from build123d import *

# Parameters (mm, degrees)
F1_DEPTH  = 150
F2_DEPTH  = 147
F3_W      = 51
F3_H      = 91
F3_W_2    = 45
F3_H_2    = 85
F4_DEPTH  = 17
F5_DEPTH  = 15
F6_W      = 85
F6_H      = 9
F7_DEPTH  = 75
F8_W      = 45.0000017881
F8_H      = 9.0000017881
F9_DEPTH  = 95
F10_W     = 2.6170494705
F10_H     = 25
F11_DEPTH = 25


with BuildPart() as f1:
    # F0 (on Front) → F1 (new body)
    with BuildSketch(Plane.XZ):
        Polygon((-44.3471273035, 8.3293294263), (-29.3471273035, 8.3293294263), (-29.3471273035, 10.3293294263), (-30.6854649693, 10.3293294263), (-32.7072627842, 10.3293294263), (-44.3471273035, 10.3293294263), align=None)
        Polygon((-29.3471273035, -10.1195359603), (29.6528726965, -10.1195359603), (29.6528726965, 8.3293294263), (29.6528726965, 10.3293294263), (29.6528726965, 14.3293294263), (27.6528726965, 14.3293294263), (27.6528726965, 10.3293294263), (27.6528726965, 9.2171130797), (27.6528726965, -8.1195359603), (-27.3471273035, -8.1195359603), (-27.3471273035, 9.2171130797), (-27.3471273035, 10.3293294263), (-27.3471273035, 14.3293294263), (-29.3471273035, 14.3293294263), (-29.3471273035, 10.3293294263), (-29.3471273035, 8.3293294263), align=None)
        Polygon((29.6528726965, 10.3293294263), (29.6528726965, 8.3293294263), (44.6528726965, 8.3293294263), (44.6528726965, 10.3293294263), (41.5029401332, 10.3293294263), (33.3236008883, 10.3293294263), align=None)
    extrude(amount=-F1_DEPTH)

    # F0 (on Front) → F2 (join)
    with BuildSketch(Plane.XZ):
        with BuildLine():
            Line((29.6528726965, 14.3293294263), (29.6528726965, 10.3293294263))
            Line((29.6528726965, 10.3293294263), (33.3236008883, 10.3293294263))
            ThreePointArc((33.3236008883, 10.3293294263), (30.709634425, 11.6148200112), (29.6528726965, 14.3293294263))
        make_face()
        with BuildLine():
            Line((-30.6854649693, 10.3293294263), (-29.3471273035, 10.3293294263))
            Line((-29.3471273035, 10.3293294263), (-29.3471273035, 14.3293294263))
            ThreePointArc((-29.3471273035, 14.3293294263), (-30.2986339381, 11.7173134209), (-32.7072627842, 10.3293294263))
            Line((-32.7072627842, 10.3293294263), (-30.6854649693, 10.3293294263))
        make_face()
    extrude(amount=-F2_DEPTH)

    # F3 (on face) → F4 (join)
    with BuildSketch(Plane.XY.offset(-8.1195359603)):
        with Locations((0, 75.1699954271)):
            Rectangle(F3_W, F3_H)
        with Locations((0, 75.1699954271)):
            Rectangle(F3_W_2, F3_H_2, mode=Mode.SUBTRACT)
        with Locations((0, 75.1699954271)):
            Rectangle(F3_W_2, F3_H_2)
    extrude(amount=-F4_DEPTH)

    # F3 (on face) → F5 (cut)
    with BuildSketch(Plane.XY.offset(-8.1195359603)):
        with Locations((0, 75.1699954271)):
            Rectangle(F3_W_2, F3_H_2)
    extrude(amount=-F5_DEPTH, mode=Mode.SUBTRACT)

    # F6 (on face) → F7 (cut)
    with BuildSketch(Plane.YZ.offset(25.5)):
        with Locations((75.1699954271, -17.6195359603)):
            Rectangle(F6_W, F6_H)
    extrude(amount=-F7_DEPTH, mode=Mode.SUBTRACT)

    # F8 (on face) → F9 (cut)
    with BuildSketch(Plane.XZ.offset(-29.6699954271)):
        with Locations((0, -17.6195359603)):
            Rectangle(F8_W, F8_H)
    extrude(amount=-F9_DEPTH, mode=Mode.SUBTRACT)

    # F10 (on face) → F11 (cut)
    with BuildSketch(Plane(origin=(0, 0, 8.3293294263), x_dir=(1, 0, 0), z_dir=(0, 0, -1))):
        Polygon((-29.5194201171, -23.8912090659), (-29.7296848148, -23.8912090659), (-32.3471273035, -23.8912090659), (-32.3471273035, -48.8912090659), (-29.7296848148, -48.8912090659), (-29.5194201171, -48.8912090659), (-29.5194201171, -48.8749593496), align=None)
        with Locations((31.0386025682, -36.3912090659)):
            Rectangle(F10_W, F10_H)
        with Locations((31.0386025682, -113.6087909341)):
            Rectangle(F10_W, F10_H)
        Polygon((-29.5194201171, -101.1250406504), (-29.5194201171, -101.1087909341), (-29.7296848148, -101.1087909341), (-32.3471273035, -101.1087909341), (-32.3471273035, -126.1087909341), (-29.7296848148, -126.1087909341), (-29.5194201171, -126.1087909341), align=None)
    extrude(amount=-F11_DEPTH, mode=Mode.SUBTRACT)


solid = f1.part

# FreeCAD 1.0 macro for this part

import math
import FreeCAD as App
import Part
import Sketcher


def add_polygon(sketch, points):
    """Adds a closed chain of lines whose ends are joined by coincident constraints."""
    first, n = sketch.GeometryCount, len(points)
    for a, b in zip(points, points[1:] + points[:1]):
        sketch.addGeometry(Part.LineSegment(App.Vector(*a, 0), App.Vector(*b, 0)), False)
    for i in range(n):
        sketch.addConstraint(Sketcher.Constraint("Coincident", first + i, 2, first + (i + 1) % n, 1))

doc = App.newDocument("Part")
body = doc.addObject("PartDesign::Body", "Body")

sketch1 = body.newObject("Sketcher::SketchObject", "Sketch")
sketch1.AttachmentSupport = (doc.getObject("XZ_Plane"), [""])
sketch1.MapMode = "FlatFace"
add_polygon(sketch1, [(-44.347127, 8.329329), (-29.347127, 8.329329), (-29.347127, -10.119536), (29.652873, -10.119536), (29.652873, 8.329329), (44.652873, 8.329329), (44.652873, 10.329329), (29.652873, 10.329329), (29.652873, 14.329329), (27.652873, 14.329329), (27.652873, -8.119536), (-27.347127, -8.119536), (-27.347127, 14.329329), (-29.347127, 14.329329), (-29.347127, 10.329329), (-44.347127, 10.329329)])
sketch1.addConstraint(Sketcher.Constraint("Horizontal", 0))
sketch1.addConstraint(Sketcher.Constraint("Vertical", 1))
sketch1.addConstraint(Sketcher.Constraint("Horizontal", 2))
sketch1.addConstraint(Sketcher.Constraint("Vertical", 3))
sketch1.addConstraint(Sketcher.Constraint("Horizontal", 4))
sketch1.addConstraint(Sketcher.Constraint("Vertical", 5))
sketch1.addConstraint(Sketcher.Constraint("Horizontal", 6))
sketch1.addConstraint(Sketcher.Constraint("Vertical", 7))
sketch1.addConstraint(Sketcher.Constraint("Horizontal", 8))
sketch1.addConstraint(Sketcher.Constraint("Vertical", 9))
sketch1.addConstraint(Sketcher.Constraint("Horizontal", 10))
sketch1.addConstraint(Sketcher.Constraint("Vertical", 11))
sketch1.addConstraint(Sketcher.Constraint("Horizontal", 12))
sketch1.addConstraint(Sketcher.Constraint("Vertical", 13))
sketch1.addConstraint(Sketcher.Constraint("Horizontal", 14))
sketch1.addConstraint(Sketcher.Constraint("Vertical", 15))
sketch1.addConstraint(Sketcher.Constraint("Horizontal", 0, 2, 3, 2))
sketch1.addConstraint(Sketcher.Constraint("Horizontal", 8, 2, 11, 2))
sketch1.addConstraint(Sketcher.Constraint("Horizontal", 6, 2, 13, 2))
sketch1.addConstraint(Sketcher.Constraint("Vertical", 3, 2, 6, 2))
sketch1.addConstraint(Sketcher.Constraint("Vertical", 1, 2, 12, 2))
sketch1.addConstraint(Sketcher.Constraint("Equal", 0, 4))
sketch1.addConstraint(Sketcher.Constraint("Equal", 8, 12))
sketch1.addConstraint(Sketcher.Constraint("Equal", 12, 5))
sketch1.addConstraint(Sketcher.Constraint("DistanceX", 0, 1, 0, 2, 15.0))
sketch1.addConstraint(Sketcher.Constraint("DistanceX", 2, 1, 2, 2, 59.0))
sketch1.addConstraint(Sketcher.Constraint("DistanceX", 8, 2, 8, 1, 2.0))
sketch1.addConstraint(Sketcher.Constraint("DistanceY", 7, 1, 7, 2, 4.0))
sketch1.addConstraint(Sketcher.Constraint("DistanceY", 2, 2, 9, 2, 2.0))
sketch1.addConstraint(Sketcher.Constraint("DistanceY", 1, 2, 1, 1, 18.448865))
sketch1.addConstraint(Sketcher.Constraint("DistanceY", -1, 1, 0, 2, 8.329329))
sketch1.addConstraint(Sketcher.Constraint("DistanceX", 0, 2, -1, 1, 29.347127))
pad1 = body.newObject("PartDesign::Pad", "Pad")
pad1.Profile = sketch1
pad1.Length = 150
pad1.Reversed = True

sketch2 = body.newObject("Sketcher::SketchObject", "Sketch001")
sketch2.AttachmentSupport = (doc.getObject("XZ_Plane"), [""])
sketch2.MapMode = "FlatFace"
sketch2.addGeometry(Part.LineSegment(App.Vector(29.652873, 14.329329, 0), App.Vector(29.652873, 10.329329, 0)), False)
sketch2.addGeometry(Part.LineSegment(App.Vector(29.652873, 10.329329, 0), App.Vector(33.323601, 10.329329, 0)), False)
sketch2.addGeometry(Part.ArcOfCircle(Part.Circle(App.Vector(33.667641, 14.329329, 0), App.Vector(0, 0, 1), 4.014768), math.radians(180), math.radians(265.084089)), False)
sketch2.addGeometry(Part.LineSegment(App.Vector(-29.347127, 10.329329, 0), App.Vector(-29.347127, 14.329329, 0)), False)
sketch2.addGeometry(Part.ArcOfCircle(Part.Circle(App.Vector(-33.408051, 14.329329, 0), App.Vector(0, 0, 1), 4.060924), math.radians(-80.062794), math.radians(0)), False)
sketch2.addGeometry(Part.LineSegment(App.Vector(-32.707263, 10.329329, 0), App.Vector(-29.347127, 10.329329, 0)), False)
sketch2.addConstraint(Sketcher.Constraint("Coincident", 0, 2, 1, 1))
sketch2.addConstraint(Sketcher.Constraint("Coincident", 1, 2, 2, 2))
sketch2.addConstraint(Sketcher.Constraint("Tangent", 2, 1, 0, 1))
sketch2.addConstraint(Sketcher.Constraint("Tangent", 3, 2, 4, 2))
sketch2.addConstraint(Sketcher.Constraint("Coincident", 4, 1, 5, 1))
sketch2.addConstraint(Sketcher.Constraint("Coincident", 5, 2, 3, 1))
sketch2.addConstraint(Sketcher.Constraint("Vertical", 0))
sketch2.addConstraint(Sketcher.Constraint("Horizontal", 1))
sketch2.addConstraint(Sketcher.Constraint("Vertical", 3))
sketch2.addConstraint(Sketcher.Constraint("Horizontal", 5))
sketch2.addConstraint(Sketcher.Constraint("Horizontal", 2, 3, 4, 3))
sketch2.addConstraint(Sketcher.Constraint("Horizontal", 1, 2, 4, 1))
sketch2.addConstraint(Sketcher.Constraint("DistanceY", 0, 2, 0, 1, 4.0))
sketch2.addConstraint(Sketcher.Constraint("DistanceX", 3, 2, 2, 1, 59.0))
sketch2.addConstraint(Sketcher.Constraint("Radius", 2, 4.014768))
sketch2.addConstraint(Sketcher.Constraint("Radius", 4, 4.060924))
sketch2.addConstraint(Sketcher.Constraint("DistanceX", -1, 1, 1, 2, 33.323601))
sketch2.addConstraint(Sketcher.Constraint("DistanceY", -1, 1, 2, 3, 14.329329))
pad2 = body.newObject("PartDesign::Pad", "Pad001")
pad2.Profile = sketch2
pad2.Length = 147
pad2.Reversed = True

sketch3 = body.newObject("Sketcher::SketchObject", "Sketch002")
sketch3.AttachmentSupport = (doc.getObject("XY_Plane"), [""])
sketch3.MapMode = "FlatFace"
sketch3.AttachmentOffset = App.Placement(App.Vector(0, 0, -8.119536), App.Rotation())
add_polygon(sketch3, [(-25.5, 120.669995), (-25.5, 29.669995), (25.5, 29.669995), (25.5, 120.669995)])
sketch3.addConstraint(Sketcher.Constraint("Vertical", 0))
sketch3.addConstraint(Sketcher.Constraint("Horizontal", 1))
sketch3.addConstraint(Sketcher.Constraint("Vertical", 2))
sketch3.addConstraint(Sketcher.Constraint("Horizontal", 3))
sketch3.addConstraint(Sketcher.Constraint("DistanceX", 1, 1, 1, 2, 51.0))
sketch3.addConstraint(Sketcher.Constraint("DistanceY", 0, 2, 0, 1, 91.0))
sketch3.addConstraint(Sketcher.Constraint("DistanceX", 0, 2, -1, 1, 25.5))
sketch3.addConstraint(Sketcher.Constraint("DistanceY", -1, 1, 0, 2, 29.669995))
pad3 = body.newObject("PartDesign::Pad", "Pad002")
pad3.Profile = sketch3
pad3.Length = 17
pad3.Reversed = True

sketch4 = body.newObject("Sketcher::SketchObject", "Sketch003")
sketch4.AttachmentSupport = (doc.getObject("XY_Plane"), [""])
sketch4.MapMode = "FlatFace"
sketch4.AttachmentOffset = App.Placement(App.Vector(0, 0, -8.119536), App.Rotation())
add_polygon(sketch4, [(-22.5, 117.669995), (-22.5, 32.669995), (22.5, 32.669995), (22.5, 117.669995)])
sketch4.addConstraint(Sketcher.Constraint("Vertical", 0))
sketch4.addConstraint(Sketcher.Constraint("Horizontal", 1))
sketch4.addConstraint(Sketcher.Constraint("Vertical", 2))
sketch4.addConstraint(Sketcher.Constraint("Horizontal", 3))
sketch4.addConstraint(Sketcher.Constraint("DistanceX", 1, 1, 1, 2, 45.0))
sketch4.addConstraint(Sketcher.Constraint("DistanceY", 0, 2, 0, 1, 85.0))
sketch4.addConstraint(Sketcher.Constraint("DistanceX", 0, 2, -1, 1, 22.5))
sketch4.addConstraint(Sketcher.Constraint("DistanceY", -1, 1, 0, 2, 32.669995))
pocket1 = body.newObject("PartDesign::Pocket", "Pocket")
pocket1.Profile = sketch4
pocket1.Length = 15

sketch5 = body.newObject("Sketcher::SketchObject", "Sketch004")
sketch5.AttachmentSupport = (doc.getObject("YZ_Plane"), [""])
sketch5.MapMode = "FlatFace"
sketch5.AttachmentOffset = App.Placement(App.Vector(0, 0, 25.5), App.Rotation())
add_polygon(sketch5, [(32.669995, -13.119536), (32.669995, -22.119536), (117.669995, -22.119536), (117.669995, -13.119536)])
sketch5.addConstraint(Sketcher.Constraint("Vertical", 0))
sketch5.addConstraint(Sketcher.Constraint("Horizontal", 1))
sketch5.addConstraint(Sketcher.Constraint("Vertical", 2))
sketch5.addConstraint(Sketcher.Constraint("Horizontal", 3))
sketch5.addConstraint(Sketcher.Constraint("DistanceX", 1, 1, 1, 2, 85.0))
sketch5.addConstraint(Sketcher.Constraint("DistanceY", 0, 2, 0, 1, 9.0))
sketch5.addConstraint(Sketcher.Constraint("DistanceX", -1, 1, 0, 2, 32.669995))
sketch5.addConstraint(Sketcher.Constraint("DistanceY", 0, 2, -1, 1, 22.119536))
pocket2 = body.newObject("PartDesign::Pocket", "Pocket001")
pocket2.Profile = sketch5
pocket2.Length = 75

sketch6 = body.newObject("Sketcher::SketchObject", "Sketch005")
sketch6.AttachmentSupport = (doc.getObject("XZ_Plane"), [""])
sketch6.MapMode = "FlatFace"
sketch6.AttachmentOffset = App.Placement(App.Vector(0, 0, -29.669995), App.Rotation())
add_polygon(sketch6, [(-22.500001, -13.119535), (-22.500001, -22.119537), (22.500001, -22.119537), (22.500001, -13.119535)])
sketch6.addConstraint(Sketcher.Constraint("Vertical", 0))
sketch6.addConstraint(Sketcher.Constraint("Horizontal", 1))
sketch6.addConstraint(Sketcher.Constraint("Vertical", 2))
sketch6.addConstraint(Sketcher.Constraint("Horizontal", 3))
sketch6.addConstraint(Sketcher.Constraint("DistanceX", 1, 1, 1, 2, 45.000002))
sketch6.addConstraint(Sketcher.Constraint("DistanceY", 0, 2, 0, 1, 9.000002))
sketch6.addConstraint(Sketcher.Constraint("DistanceX", 0, 2, -1, 1, 22.500001))
sketch6.addConstraint(Sketcher.Constraint("DistanceY", 0, 2, -1, 1, 22.119537))
pocket3 = body.newObject("PartDesign::Pocket", "Pocket002")
pocket3.Profile = sketch6
pocket3.Length = 95

sketch7 = body.newObject("Sketcher::SketchObject", "Sketch006")
sketch7.AttachmentSupport = (doc.getObject("XY_Plane"), [""])
sketch7.MapMode = "FlatFace"
sketch7.AttachmentOffset = App.Placement(App.Vector(0, 0, 8.329329), App.Rotation())
add_polygon(sketch7, [(-29.51942, 23.891209), (-32.347127, 23.891209), (-32.347127, 48.891209), (-29.51942, 48.891209)])
add_polygon(sketch7, [(29.730078, 23.891209), (29.730078, 48.891209), (32.347127, 48.891209), (32.347127, 23.891209)])
add_polygon(sketch7, [(29.730078, 101.108791), (29.730078, 126.108791), (32.347127, 126.108791), (32.347127, 101.108791)])
add_polygon(sketch7, [(-29.51942, 101.108791), (-32.347127, 101.108791), (-32.347127, 126.108791), (-29.51942, 126.108791)])
sketch7.addConstraint(Sketcher.Constraint("Horizontal", 0))
sketch7.addConstraint(Sketcher.Constraint("Vertical", 1))
sketch7.addConstraint(Sketcher.Constraint("Horizontal", 2))
sketch7.addConstraint(Sketcher.Constraint("Vertical", 3))
sketch7.addConstraint(Sketcher.Constraint("Vertical", 4))
sketch7.addConstraint(Sketcher.Constraint("Horizontal", 5))
sketch7.addConstraint(Sketcher.Constraint("Vertical", 6))
sketch7.addConstraint(Sketcher.Constraint("Horizontal", 7))
sketch7.addConstraint(Sketcher.Constraint("Vertical", 8))
sketch7.addConstraint(Sketcher.Constraint("Horizontal", 9))
sketch7.addConstraint(Sketcher.Constraint("Vertical", 10))
sketch7.addConstraint(Sketcher.Constraint("Horizontal", 11))
sketch7.addConstraint(Sketcher.Constraint("Horizontal", 12))
sketch7.addConstraint(Sketcher.Constraint("Vertical", 13))
sketch7.addConstraint(Sketcher.Constraint("Horizontal", 14))
sketch7.addConstraint(Sketcher.Constraint("Vertical", 15))
sketch7.addConstraint(Sketcher.Constraint("Symmetric", 1, 2, 5, 2, -2))
sketch7.addConstraint(Sketcher.Constraint("Symmetric", 10, 2, 12, 2, -2))
sketch7.addConstraint(Sketcher.Constraint("Horizontal", 3, 2, 6, 2))
sketch7.addConstraint(Sketcher.Constraint("Horizontal", 9, 2, 13, 2))
sketch7.addConstraint(Sketcher.Constraint("Vertical", 7, 2, 8, 2))
sketch7.addConstraint(Sketcher.Constraint("Vertical", 6, 2, 9, 2))
sketch7.addConstraint(Sketcher.Constraint("Vertical", 3, 2, 14, 2))
sketch7.addConstraint(Sketcher.Constraint("Equal", 6, 8))
sketch7.addConstraint(Sketcher.Constraint("DistanceY", 1, 1, 1, 2, 25.0))
sketch7.addConstraint(Sketcher.Constraint("DistanceX", 5, 1, 5, 2, 2.617049))
sketch7.addConstraint(Sketcher.Constraint("DistanceX", 0, 2, 0, 1, 2.827707))
sketch7.addConstraint(Sketcher.Constraint("DistanceY", -1, 1, 0, 2, 23.891209))
sketch7.addConstraint(Sketcher.Constraint("DistanceX", 2, 2, -1, 1, 29.51942))
sketch7.addConstraint(Sketcher.Constraint("DistanceY", -1, 1, 8, 2, 126.108791))
pocket4 = body.newObject("PartDesign::Pocket", "Pocket003")
pocket4.Profile = sketch7
pocket4.Length = 25
pocket4.Reversed = True

doc.recompute()
